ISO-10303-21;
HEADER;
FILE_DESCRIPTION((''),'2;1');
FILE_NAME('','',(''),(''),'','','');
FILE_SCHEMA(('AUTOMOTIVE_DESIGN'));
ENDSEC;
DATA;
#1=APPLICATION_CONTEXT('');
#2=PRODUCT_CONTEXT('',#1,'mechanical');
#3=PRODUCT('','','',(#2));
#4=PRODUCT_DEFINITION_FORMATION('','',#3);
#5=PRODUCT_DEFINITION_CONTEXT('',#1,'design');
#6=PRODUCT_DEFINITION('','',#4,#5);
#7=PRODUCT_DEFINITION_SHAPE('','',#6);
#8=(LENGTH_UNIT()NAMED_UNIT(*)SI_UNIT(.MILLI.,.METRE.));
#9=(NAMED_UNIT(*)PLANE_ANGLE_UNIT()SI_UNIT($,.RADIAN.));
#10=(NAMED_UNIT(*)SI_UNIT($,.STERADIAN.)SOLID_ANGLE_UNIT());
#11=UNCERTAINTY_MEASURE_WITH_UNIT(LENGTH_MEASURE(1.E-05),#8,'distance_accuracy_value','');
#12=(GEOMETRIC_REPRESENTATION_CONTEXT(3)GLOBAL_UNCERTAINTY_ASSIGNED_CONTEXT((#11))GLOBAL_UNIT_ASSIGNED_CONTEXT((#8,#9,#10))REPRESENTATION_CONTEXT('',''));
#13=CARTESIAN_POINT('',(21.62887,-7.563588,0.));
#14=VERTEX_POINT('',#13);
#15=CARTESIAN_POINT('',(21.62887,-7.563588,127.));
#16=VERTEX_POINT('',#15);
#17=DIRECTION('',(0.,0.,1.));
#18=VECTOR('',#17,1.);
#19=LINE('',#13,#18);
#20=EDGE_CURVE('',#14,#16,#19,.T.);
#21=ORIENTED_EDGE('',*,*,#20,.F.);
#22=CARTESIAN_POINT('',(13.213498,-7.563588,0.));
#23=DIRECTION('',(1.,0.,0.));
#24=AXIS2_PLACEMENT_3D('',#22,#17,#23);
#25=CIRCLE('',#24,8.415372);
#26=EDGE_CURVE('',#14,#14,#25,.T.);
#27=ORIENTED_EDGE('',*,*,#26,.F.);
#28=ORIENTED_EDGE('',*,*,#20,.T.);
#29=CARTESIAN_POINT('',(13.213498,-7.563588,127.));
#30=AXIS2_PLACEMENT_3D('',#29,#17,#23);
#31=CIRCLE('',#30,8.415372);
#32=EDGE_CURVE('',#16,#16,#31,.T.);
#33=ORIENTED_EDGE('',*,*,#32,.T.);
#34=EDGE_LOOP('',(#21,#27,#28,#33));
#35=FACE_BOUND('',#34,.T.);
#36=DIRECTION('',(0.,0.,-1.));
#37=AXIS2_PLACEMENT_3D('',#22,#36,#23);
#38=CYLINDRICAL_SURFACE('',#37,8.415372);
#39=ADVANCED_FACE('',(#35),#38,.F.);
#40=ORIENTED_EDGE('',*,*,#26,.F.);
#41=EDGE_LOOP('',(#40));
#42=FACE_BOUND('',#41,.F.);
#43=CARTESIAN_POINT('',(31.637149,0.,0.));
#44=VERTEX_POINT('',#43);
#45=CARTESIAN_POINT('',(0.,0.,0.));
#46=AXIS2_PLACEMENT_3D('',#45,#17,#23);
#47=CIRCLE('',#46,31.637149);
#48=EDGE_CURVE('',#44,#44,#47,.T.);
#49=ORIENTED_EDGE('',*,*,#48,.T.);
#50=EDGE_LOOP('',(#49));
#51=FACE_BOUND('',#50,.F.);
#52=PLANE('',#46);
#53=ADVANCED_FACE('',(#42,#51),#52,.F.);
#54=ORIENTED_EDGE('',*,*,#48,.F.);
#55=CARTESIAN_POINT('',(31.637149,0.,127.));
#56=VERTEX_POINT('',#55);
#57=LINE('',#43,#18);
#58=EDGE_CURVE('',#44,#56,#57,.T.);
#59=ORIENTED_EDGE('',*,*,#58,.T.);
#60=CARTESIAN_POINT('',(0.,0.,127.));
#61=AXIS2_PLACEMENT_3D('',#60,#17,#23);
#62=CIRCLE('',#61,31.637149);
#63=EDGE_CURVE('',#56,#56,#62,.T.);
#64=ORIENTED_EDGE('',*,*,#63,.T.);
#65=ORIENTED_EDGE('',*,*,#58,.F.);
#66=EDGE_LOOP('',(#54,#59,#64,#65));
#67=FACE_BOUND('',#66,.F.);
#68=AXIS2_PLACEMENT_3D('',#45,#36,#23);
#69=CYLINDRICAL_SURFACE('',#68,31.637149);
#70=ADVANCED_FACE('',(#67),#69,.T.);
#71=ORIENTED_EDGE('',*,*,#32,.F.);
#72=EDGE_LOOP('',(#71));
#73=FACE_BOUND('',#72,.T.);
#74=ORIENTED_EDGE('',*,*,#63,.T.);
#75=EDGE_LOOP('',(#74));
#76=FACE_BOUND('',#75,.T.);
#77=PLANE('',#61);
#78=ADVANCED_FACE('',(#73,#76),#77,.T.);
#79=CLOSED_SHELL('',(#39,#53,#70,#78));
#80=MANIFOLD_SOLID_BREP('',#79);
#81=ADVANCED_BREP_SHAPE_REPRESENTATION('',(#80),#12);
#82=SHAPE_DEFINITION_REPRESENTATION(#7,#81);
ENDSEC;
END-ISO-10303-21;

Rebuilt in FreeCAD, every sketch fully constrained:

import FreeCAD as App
import Part
import Sketcher
from FreeCAD import Vector
Q = App.Units.Quantity

doc = App.newDocument("Part")
body = doc.addObject("PartDesign::Body", "Body")

# Sketch on XY plane
sketch1 = body.newObject("Sketcher::SketchObject", "Sketch")
sketch1.AttachmentSupport = (doc.getObject("XY_Plane"), [""])
sketch1.MapMode = "FlatFace"
sketch1.addGeometry([
    Part.Circle(Vector(0, 0, 0), Vector(0, 0, 1), 32),
    Part.Circle(Vector(13, -8, 0), Vector(0, 0, 1), 8),
], False)
sketch1.addConstraint([
    Sketcher.Constraint("Coincident", 0, 3, -1, 1),
    Sketcher.Constraint("Diameter", 0, 63.274298),
    Sketcher.Constraint("Diameter", 1, 16.830744),
    Sketcher.Constraint("DistanceY", 1, 3, -1, 1, 7.563588),
    Sketcher.Constraint("DistanceX", -1, 1, 1, 3, 13.213498),
])
pad1 = body.newObject("PartDesign::Pad", "Pad")
pad1.Profile = sketch1
pad1.Length = Q("5 in")

doc.recompute()
